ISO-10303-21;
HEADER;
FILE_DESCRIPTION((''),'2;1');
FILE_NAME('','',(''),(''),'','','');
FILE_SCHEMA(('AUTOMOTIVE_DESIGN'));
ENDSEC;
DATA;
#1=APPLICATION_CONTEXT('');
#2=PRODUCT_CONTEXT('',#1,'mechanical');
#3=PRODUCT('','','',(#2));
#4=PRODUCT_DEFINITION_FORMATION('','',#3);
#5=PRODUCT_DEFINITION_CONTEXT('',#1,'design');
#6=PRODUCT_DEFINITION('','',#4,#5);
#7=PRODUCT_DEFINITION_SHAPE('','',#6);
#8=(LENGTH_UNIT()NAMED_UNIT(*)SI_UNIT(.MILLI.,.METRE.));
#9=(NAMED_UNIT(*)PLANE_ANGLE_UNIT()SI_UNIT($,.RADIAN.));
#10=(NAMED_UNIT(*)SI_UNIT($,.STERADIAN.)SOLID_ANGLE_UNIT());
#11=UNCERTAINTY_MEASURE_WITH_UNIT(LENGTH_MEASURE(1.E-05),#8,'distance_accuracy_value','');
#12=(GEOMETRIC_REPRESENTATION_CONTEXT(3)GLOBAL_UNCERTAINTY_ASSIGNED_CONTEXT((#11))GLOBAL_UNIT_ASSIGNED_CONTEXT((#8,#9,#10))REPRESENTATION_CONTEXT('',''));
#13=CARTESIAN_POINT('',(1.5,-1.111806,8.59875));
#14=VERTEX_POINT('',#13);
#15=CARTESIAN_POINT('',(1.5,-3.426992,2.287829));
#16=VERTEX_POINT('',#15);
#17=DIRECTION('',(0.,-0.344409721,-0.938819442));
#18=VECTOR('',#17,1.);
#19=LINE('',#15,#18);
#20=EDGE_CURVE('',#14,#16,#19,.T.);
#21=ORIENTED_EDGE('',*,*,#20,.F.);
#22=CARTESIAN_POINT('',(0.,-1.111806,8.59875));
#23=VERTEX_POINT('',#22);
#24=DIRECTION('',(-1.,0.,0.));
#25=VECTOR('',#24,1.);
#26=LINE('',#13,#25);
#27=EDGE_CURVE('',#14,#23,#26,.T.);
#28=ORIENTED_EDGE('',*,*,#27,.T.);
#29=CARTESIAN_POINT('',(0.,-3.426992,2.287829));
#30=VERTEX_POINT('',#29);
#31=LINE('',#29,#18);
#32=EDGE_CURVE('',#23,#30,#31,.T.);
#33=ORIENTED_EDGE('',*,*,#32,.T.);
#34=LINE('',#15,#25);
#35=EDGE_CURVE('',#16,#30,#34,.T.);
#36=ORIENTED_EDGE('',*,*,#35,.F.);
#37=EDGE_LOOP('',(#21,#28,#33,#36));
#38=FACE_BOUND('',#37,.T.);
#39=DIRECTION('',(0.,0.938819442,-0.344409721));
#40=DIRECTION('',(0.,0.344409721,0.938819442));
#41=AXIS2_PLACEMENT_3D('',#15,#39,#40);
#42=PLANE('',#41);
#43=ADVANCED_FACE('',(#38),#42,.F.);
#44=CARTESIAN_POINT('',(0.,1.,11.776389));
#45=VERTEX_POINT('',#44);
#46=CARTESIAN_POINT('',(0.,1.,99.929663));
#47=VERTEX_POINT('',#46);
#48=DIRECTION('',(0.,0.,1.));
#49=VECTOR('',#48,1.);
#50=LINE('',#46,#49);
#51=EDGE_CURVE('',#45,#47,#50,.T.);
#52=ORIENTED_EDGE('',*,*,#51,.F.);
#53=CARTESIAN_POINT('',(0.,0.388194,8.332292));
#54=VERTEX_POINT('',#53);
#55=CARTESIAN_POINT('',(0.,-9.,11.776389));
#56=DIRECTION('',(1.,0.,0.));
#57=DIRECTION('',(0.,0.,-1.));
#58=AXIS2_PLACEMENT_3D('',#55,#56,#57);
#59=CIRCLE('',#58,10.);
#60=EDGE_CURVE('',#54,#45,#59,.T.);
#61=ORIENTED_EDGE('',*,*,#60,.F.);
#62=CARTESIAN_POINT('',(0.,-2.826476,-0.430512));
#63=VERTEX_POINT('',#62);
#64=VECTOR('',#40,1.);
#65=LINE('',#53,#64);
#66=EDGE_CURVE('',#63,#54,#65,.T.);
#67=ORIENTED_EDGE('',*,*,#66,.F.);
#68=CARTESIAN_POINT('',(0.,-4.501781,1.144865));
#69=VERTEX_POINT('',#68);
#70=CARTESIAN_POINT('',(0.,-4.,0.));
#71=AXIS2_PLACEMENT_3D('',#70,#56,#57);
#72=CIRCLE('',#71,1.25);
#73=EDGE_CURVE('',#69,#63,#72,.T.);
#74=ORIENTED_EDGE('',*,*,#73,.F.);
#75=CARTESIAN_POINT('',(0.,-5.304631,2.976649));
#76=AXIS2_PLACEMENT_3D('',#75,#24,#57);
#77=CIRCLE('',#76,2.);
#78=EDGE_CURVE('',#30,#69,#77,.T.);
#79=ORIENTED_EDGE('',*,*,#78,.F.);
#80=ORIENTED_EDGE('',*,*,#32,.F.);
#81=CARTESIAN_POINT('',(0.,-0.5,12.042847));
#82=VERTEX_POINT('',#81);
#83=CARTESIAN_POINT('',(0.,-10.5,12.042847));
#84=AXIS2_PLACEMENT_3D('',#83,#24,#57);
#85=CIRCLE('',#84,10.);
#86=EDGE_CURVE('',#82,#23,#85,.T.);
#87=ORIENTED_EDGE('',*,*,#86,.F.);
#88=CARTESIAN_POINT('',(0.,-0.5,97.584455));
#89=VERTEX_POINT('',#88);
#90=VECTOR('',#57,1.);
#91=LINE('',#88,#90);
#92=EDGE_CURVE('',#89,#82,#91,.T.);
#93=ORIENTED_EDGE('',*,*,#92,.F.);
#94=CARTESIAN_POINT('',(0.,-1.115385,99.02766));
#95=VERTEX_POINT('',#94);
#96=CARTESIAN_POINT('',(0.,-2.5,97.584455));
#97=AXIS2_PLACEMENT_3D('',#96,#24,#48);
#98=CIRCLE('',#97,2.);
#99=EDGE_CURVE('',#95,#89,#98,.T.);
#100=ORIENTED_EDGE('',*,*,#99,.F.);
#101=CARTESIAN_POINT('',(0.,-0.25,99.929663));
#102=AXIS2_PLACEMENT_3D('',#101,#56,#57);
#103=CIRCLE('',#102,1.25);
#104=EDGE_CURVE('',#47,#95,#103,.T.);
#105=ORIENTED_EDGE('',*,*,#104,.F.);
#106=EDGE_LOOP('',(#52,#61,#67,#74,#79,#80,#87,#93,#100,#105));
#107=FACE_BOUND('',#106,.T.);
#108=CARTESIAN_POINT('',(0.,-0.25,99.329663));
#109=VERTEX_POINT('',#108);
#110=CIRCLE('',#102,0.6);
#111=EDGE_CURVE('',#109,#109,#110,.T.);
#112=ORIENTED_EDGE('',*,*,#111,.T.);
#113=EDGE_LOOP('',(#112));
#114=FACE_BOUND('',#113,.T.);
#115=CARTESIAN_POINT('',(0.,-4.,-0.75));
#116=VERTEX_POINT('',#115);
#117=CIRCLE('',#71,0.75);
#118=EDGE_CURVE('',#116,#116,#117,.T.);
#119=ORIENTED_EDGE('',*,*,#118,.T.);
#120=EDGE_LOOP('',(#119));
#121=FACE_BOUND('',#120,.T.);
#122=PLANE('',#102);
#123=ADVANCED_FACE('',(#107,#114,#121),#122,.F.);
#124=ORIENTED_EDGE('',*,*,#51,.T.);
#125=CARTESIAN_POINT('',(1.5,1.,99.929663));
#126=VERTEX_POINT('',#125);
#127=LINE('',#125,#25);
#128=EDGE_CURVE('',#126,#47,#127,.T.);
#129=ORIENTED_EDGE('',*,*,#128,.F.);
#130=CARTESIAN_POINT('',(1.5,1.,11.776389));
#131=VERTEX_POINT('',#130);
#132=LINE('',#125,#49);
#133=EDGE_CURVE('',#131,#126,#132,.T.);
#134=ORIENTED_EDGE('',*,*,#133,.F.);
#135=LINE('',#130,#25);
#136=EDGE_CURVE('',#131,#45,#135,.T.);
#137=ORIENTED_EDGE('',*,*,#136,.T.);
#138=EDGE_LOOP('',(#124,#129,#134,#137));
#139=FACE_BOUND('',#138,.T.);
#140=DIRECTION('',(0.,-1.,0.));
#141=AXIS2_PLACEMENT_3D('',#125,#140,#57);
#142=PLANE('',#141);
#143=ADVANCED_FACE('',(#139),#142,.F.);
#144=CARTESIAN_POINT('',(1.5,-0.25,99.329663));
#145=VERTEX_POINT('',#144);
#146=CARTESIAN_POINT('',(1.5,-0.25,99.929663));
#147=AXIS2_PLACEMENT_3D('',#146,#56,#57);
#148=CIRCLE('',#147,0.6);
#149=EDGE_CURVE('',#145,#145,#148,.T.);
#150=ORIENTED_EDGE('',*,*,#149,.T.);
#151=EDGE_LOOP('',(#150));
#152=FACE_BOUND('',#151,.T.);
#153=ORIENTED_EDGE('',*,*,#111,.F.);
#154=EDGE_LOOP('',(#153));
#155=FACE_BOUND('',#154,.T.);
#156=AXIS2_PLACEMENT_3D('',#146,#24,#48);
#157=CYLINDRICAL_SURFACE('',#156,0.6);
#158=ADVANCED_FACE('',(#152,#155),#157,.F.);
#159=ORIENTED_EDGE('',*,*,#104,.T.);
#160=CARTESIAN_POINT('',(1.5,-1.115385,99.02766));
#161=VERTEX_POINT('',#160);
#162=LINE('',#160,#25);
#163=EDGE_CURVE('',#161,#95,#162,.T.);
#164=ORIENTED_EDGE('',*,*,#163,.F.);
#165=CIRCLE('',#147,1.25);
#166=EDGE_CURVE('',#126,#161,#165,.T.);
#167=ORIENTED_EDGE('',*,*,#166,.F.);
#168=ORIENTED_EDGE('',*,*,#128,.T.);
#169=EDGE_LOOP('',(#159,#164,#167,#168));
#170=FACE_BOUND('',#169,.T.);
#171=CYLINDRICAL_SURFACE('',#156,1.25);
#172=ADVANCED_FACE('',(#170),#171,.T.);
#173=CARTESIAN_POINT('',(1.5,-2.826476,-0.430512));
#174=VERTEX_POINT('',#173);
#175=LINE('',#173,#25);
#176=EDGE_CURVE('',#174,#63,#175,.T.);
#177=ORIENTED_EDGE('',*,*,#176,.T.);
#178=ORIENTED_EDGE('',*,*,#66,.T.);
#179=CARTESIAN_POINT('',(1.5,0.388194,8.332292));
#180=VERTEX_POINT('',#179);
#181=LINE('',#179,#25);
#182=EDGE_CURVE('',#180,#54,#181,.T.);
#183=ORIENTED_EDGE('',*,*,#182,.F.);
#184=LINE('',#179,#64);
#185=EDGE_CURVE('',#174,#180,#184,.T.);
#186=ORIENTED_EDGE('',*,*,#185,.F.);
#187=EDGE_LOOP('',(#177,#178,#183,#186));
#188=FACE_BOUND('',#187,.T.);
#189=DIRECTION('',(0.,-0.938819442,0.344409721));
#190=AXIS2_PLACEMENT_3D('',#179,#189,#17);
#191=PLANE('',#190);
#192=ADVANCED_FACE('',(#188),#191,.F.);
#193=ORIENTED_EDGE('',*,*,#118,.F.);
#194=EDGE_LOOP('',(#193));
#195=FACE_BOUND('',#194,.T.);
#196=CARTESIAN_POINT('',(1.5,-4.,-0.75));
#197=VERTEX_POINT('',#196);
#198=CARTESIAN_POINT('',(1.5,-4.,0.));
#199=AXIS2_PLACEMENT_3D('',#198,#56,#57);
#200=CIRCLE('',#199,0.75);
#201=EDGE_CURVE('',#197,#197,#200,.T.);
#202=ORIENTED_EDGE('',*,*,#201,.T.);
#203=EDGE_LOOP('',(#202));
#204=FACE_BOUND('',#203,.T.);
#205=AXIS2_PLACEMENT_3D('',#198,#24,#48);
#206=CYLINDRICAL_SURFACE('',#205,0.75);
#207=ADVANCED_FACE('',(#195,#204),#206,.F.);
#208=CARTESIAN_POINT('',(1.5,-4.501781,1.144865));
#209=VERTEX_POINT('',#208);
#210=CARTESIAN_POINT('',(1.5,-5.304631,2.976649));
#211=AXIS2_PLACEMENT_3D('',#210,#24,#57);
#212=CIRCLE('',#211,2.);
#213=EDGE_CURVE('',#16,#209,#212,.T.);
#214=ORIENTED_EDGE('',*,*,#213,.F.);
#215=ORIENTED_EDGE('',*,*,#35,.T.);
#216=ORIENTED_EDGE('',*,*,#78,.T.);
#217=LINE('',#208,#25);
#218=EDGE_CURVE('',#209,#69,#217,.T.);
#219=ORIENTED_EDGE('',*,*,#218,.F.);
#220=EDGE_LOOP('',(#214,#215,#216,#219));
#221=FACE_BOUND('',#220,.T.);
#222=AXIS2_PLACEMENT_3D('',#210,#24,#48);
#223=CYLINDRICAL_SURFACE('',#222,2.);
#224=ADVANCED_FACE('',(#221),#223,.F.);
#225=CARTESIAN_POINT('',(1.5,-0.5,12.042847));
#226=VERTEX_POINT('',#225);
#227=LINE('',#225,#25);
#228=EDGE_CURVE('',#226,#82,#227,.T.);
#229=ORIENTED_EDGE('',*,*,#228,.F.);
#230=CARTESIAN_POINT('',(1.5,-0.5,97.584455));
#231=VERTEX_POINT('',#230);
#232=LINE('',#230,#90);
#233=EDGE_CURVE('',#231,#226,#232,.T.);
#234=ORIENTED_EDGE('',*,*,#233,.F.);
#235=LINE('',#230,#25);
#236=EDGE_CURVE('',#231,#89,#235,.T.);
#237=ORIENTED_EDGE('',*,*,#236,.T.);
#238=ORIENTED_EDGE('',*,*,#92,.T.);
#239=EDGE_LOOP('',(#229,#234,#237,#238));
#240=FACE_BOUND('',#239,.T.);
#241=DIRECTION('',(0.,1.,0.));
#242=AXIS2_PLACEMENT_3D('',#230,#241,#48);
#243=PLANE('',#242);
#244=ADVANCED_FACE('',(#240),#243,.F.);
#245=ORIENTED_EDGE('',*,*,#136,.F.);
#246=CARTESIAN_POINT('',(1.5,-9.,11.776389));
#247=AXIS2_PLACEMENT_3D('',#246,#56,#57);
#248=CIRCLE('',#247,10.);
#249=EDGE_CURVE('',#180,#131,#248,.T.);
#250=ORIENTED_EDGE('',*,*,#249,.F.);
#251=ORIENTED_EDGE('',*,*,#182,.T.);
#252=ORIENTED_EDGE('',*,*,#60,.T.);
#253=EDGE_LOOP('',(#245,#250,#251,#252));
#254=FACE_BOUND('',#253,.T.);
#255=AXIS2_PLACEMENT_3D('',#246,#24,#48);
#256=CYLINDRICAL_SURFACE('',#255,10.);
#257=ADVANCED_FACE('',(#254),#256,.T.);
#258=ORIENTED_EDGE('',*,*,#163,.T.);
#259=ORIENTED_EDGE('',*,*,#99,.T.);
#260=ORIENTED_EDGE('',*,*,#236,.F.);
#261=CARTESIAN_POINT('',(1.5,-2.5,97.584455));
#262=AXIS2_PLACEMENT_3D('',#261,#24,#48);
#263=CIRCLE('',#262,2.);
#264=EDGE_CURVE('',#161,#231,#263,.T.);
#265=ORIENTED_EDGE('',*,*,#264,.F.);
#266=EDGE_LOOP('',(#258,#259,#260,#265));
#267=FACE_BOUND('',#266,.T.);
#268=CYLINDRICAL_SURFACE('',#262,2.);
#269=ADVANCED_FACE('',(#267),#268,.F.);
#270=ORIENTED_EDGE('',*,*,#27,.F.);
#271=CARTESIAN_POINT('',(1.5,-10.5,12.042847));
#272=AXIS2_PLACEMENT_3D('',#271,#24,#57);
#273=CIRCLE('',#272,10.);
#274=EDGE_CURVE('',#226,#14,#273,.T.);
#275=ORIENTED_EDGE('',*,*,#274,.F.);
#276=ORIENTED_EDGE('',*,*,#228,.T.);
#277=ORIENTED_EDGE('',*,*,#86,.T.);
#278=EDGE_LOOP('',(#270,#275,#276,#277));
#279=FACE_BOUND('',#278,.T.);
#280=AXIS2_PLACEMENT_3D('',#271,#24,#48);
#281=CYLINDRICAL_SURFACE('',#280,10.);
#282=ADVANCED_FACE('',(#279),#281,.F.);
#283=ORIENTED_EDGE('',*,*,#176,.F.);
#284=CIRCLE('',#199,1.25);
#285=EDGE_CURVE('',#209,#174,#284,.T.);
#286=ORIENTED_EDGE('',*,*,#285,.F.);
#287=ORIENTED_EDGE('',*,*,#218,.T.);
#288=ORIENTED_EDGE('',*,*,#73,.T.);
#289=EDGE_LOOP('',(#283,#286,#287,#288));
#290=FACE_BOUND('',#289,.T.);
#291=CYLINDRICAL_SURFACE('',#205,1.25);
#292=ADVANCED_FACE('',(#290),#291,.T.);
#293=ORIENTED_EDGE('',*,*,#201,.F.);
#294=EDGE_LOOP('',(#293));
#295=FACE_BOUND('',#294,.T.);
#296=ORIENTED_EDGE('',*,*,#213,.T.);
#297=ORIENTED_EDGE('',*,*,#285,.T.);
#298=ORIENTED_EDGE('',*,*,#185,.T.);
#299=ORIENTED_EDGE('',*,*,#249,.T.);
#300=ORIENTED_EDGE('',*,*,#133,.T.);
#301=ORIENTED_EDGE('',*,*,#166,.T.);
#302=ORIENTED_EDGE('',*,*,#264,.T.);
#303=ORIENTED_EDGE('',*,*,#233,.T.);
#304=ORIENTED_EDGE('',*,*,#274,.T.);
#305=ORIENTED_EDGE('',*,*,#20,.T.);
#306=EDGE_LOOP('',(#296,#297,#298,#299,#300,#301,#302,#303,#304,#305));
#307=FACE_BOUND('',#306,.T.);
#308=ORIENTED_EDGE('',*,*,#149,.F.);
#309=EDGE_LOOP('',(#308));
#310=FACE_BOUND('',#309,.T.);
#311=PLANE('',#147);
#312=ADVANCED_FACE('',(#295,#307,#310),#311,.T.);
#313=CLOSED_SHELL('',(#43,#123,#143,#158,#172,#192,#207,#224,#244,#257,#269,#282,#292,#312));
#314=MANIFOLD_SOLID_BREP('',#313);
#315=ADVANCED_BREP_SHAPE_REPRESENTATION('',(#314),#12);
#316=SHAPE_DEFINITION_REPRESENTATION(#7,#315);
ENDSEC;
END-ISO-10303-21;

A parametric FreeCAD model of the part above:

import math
import FreeCAD as App
import Part
import Sketcher
from FreeCAD import Vector

doc = App.newDocument("Part")
body = doc.addObject("PartDesign::Body", "Body")

# Sketch on YZ plane
sketch1 = body.newObject("Sketcher::SketchObject", "Sketch")
sketch1.AttachmentSupport = (doc.getObject("YZ_Plane"), [""])
sketch1.MapMode = "FlatFace"
sketch1.addGeometry([
    Part.LineSegment(Vector(-2.8, -0.4, 0), Vector(0.4, 8.3, 0)),  # 0
    Part.ArcOfCircle(Part.Circle(Vector(-9, 11.8, 0), Vector(0, 0, 1), 10), math.radians(-20), math.radians(0)),  # 1
    Part.LineSegment(Vector(1, 11.8, 0), Vector(1, 99.9, 0)),  # 2
    Part.ArcOfCircle(Part.Circle(Vector(-0.2, 99.9, 0), Vector(0, 0, 1), 1.2), math.radians(0), math.radians(226)),  # 3
    Part.ArcOfCircle(Part.Circle(Vector(-2.5, 97.6, 0), Vector(0, 0, 1), 2), math.radians(0), math.radians(46)),  # 4
    Part.LineSegment(Vector(-0.5, 97.6, 0), Vector(-0.5, 12, 0)),  # 5
    Part.ArcOfCircle(Part.Circle(Vector(-10.5, 12, 0), Vector(0, 0, 1), 10), math.radians(-20), math.radians(0)),  # 6
    Part.LineSegment(Vector(-1.1, 8.6, 0), Vector(-3.4, 2.3, 0)),  # 7
    Part.ArcOfCircle(Part.Circle(Vector(-5.3, 3, 0), Vector(0, 0, 1), 2), math.radians(-66), math.radians(-20)),  # 8
    Part.ArcOfCircle(Part.Circle(Vector(-4, 0, 0), Vector(0, 0, 1), 1.2), math.radians(114), math.radians(340)),  # 9
    Part.Circle(Vector(-4, 0, 0), Vector(0, 0, 1), 0.8),  # 10
    Part.Circle(Vector(-0.2, 99.9, 0), Vector(0, 0, 1), 0.6),  # 11
], False)
sketch1.addConstraint([
    Sketcher.Constraint("Tangent", 0, 2, 1, 1),
    Sketcher.Constraint("Tangent", 1, 2, 2, 1),
    Sketcher.Constraint("Tangent", 2, 2, 3, 1),
    Sketcher.Constraint("Tangent", 3, 2, 4, 2),
    Sketcher.Constraint("Tangent", 4, 1, 5, 1),
    Sketcher.Constraint("Tangent", 5, 2, 6, 2),
    Sketcher.Constraint("Tangent", 6, 1, 7, 1),
    Sketcher.Constraint("Tangent", 7, 2, 8, 2),
    Sketcher.Constraint("Tangent", 8, 1, 9, 1),
    Sketcher.Constraint("Tangent", 9, 2, 0, 1),
    Sketcher.Constraint("Vertical", 2),
    Sketcher.Constraint("Vertical", 5),
    Sketcher.Constraint("Coincident", 10, 3, 9, 3),
    Sketcher.Constraint("Coincident", 11, 3, 3, 3),
    Sketcher.Constraint("Equal", 1, 6),
    Sketcher.Constraint("Equal", 4, 8),
    Sketcher.Constraint("Equal", 3, 9),
    Sketcher.Constraint("PointOnObject", 9, 3, -1),
    Sketcher.Constraint("Parallel", 0, 7),
    Sketcher.Constraint("Radius", 1, 10.0),
    Sketcher.Constraint("Radius", 4, 2.0),
    Sketcher.Constraint("Diameter", 10, 1.5),
    Sketcher.Constraint("Diameter", 11, 1.2),
    Sketcher.Constraint("Radius", 3, 1.25),
    Sketcher.Constraint("DistanceX", 1, 3, -1, 1, 9.0),
    Sketcher.Constraint("DistanceX", 9, 3, -1, 1, 4.0),
    Sketcher.Constraint("DistanceX", 4, 3, -1, 1, 2.5),
    Sketcher.Constraint("DistanceY", 8, 3, 6, 3, 9.066199),
    Sketcher.Constraint("DistanceY", 8, 3, 6, 1, 5.622101),
    Sketcher.Constraint("DistanceY", 2, 1, 2, 2, 88.153274),
])
pad1 = body.newObject("PartDesign::Pad", "Pad")
pad1.Profile = sketch1
pad1.Length = 1.5

doc.recompute()
